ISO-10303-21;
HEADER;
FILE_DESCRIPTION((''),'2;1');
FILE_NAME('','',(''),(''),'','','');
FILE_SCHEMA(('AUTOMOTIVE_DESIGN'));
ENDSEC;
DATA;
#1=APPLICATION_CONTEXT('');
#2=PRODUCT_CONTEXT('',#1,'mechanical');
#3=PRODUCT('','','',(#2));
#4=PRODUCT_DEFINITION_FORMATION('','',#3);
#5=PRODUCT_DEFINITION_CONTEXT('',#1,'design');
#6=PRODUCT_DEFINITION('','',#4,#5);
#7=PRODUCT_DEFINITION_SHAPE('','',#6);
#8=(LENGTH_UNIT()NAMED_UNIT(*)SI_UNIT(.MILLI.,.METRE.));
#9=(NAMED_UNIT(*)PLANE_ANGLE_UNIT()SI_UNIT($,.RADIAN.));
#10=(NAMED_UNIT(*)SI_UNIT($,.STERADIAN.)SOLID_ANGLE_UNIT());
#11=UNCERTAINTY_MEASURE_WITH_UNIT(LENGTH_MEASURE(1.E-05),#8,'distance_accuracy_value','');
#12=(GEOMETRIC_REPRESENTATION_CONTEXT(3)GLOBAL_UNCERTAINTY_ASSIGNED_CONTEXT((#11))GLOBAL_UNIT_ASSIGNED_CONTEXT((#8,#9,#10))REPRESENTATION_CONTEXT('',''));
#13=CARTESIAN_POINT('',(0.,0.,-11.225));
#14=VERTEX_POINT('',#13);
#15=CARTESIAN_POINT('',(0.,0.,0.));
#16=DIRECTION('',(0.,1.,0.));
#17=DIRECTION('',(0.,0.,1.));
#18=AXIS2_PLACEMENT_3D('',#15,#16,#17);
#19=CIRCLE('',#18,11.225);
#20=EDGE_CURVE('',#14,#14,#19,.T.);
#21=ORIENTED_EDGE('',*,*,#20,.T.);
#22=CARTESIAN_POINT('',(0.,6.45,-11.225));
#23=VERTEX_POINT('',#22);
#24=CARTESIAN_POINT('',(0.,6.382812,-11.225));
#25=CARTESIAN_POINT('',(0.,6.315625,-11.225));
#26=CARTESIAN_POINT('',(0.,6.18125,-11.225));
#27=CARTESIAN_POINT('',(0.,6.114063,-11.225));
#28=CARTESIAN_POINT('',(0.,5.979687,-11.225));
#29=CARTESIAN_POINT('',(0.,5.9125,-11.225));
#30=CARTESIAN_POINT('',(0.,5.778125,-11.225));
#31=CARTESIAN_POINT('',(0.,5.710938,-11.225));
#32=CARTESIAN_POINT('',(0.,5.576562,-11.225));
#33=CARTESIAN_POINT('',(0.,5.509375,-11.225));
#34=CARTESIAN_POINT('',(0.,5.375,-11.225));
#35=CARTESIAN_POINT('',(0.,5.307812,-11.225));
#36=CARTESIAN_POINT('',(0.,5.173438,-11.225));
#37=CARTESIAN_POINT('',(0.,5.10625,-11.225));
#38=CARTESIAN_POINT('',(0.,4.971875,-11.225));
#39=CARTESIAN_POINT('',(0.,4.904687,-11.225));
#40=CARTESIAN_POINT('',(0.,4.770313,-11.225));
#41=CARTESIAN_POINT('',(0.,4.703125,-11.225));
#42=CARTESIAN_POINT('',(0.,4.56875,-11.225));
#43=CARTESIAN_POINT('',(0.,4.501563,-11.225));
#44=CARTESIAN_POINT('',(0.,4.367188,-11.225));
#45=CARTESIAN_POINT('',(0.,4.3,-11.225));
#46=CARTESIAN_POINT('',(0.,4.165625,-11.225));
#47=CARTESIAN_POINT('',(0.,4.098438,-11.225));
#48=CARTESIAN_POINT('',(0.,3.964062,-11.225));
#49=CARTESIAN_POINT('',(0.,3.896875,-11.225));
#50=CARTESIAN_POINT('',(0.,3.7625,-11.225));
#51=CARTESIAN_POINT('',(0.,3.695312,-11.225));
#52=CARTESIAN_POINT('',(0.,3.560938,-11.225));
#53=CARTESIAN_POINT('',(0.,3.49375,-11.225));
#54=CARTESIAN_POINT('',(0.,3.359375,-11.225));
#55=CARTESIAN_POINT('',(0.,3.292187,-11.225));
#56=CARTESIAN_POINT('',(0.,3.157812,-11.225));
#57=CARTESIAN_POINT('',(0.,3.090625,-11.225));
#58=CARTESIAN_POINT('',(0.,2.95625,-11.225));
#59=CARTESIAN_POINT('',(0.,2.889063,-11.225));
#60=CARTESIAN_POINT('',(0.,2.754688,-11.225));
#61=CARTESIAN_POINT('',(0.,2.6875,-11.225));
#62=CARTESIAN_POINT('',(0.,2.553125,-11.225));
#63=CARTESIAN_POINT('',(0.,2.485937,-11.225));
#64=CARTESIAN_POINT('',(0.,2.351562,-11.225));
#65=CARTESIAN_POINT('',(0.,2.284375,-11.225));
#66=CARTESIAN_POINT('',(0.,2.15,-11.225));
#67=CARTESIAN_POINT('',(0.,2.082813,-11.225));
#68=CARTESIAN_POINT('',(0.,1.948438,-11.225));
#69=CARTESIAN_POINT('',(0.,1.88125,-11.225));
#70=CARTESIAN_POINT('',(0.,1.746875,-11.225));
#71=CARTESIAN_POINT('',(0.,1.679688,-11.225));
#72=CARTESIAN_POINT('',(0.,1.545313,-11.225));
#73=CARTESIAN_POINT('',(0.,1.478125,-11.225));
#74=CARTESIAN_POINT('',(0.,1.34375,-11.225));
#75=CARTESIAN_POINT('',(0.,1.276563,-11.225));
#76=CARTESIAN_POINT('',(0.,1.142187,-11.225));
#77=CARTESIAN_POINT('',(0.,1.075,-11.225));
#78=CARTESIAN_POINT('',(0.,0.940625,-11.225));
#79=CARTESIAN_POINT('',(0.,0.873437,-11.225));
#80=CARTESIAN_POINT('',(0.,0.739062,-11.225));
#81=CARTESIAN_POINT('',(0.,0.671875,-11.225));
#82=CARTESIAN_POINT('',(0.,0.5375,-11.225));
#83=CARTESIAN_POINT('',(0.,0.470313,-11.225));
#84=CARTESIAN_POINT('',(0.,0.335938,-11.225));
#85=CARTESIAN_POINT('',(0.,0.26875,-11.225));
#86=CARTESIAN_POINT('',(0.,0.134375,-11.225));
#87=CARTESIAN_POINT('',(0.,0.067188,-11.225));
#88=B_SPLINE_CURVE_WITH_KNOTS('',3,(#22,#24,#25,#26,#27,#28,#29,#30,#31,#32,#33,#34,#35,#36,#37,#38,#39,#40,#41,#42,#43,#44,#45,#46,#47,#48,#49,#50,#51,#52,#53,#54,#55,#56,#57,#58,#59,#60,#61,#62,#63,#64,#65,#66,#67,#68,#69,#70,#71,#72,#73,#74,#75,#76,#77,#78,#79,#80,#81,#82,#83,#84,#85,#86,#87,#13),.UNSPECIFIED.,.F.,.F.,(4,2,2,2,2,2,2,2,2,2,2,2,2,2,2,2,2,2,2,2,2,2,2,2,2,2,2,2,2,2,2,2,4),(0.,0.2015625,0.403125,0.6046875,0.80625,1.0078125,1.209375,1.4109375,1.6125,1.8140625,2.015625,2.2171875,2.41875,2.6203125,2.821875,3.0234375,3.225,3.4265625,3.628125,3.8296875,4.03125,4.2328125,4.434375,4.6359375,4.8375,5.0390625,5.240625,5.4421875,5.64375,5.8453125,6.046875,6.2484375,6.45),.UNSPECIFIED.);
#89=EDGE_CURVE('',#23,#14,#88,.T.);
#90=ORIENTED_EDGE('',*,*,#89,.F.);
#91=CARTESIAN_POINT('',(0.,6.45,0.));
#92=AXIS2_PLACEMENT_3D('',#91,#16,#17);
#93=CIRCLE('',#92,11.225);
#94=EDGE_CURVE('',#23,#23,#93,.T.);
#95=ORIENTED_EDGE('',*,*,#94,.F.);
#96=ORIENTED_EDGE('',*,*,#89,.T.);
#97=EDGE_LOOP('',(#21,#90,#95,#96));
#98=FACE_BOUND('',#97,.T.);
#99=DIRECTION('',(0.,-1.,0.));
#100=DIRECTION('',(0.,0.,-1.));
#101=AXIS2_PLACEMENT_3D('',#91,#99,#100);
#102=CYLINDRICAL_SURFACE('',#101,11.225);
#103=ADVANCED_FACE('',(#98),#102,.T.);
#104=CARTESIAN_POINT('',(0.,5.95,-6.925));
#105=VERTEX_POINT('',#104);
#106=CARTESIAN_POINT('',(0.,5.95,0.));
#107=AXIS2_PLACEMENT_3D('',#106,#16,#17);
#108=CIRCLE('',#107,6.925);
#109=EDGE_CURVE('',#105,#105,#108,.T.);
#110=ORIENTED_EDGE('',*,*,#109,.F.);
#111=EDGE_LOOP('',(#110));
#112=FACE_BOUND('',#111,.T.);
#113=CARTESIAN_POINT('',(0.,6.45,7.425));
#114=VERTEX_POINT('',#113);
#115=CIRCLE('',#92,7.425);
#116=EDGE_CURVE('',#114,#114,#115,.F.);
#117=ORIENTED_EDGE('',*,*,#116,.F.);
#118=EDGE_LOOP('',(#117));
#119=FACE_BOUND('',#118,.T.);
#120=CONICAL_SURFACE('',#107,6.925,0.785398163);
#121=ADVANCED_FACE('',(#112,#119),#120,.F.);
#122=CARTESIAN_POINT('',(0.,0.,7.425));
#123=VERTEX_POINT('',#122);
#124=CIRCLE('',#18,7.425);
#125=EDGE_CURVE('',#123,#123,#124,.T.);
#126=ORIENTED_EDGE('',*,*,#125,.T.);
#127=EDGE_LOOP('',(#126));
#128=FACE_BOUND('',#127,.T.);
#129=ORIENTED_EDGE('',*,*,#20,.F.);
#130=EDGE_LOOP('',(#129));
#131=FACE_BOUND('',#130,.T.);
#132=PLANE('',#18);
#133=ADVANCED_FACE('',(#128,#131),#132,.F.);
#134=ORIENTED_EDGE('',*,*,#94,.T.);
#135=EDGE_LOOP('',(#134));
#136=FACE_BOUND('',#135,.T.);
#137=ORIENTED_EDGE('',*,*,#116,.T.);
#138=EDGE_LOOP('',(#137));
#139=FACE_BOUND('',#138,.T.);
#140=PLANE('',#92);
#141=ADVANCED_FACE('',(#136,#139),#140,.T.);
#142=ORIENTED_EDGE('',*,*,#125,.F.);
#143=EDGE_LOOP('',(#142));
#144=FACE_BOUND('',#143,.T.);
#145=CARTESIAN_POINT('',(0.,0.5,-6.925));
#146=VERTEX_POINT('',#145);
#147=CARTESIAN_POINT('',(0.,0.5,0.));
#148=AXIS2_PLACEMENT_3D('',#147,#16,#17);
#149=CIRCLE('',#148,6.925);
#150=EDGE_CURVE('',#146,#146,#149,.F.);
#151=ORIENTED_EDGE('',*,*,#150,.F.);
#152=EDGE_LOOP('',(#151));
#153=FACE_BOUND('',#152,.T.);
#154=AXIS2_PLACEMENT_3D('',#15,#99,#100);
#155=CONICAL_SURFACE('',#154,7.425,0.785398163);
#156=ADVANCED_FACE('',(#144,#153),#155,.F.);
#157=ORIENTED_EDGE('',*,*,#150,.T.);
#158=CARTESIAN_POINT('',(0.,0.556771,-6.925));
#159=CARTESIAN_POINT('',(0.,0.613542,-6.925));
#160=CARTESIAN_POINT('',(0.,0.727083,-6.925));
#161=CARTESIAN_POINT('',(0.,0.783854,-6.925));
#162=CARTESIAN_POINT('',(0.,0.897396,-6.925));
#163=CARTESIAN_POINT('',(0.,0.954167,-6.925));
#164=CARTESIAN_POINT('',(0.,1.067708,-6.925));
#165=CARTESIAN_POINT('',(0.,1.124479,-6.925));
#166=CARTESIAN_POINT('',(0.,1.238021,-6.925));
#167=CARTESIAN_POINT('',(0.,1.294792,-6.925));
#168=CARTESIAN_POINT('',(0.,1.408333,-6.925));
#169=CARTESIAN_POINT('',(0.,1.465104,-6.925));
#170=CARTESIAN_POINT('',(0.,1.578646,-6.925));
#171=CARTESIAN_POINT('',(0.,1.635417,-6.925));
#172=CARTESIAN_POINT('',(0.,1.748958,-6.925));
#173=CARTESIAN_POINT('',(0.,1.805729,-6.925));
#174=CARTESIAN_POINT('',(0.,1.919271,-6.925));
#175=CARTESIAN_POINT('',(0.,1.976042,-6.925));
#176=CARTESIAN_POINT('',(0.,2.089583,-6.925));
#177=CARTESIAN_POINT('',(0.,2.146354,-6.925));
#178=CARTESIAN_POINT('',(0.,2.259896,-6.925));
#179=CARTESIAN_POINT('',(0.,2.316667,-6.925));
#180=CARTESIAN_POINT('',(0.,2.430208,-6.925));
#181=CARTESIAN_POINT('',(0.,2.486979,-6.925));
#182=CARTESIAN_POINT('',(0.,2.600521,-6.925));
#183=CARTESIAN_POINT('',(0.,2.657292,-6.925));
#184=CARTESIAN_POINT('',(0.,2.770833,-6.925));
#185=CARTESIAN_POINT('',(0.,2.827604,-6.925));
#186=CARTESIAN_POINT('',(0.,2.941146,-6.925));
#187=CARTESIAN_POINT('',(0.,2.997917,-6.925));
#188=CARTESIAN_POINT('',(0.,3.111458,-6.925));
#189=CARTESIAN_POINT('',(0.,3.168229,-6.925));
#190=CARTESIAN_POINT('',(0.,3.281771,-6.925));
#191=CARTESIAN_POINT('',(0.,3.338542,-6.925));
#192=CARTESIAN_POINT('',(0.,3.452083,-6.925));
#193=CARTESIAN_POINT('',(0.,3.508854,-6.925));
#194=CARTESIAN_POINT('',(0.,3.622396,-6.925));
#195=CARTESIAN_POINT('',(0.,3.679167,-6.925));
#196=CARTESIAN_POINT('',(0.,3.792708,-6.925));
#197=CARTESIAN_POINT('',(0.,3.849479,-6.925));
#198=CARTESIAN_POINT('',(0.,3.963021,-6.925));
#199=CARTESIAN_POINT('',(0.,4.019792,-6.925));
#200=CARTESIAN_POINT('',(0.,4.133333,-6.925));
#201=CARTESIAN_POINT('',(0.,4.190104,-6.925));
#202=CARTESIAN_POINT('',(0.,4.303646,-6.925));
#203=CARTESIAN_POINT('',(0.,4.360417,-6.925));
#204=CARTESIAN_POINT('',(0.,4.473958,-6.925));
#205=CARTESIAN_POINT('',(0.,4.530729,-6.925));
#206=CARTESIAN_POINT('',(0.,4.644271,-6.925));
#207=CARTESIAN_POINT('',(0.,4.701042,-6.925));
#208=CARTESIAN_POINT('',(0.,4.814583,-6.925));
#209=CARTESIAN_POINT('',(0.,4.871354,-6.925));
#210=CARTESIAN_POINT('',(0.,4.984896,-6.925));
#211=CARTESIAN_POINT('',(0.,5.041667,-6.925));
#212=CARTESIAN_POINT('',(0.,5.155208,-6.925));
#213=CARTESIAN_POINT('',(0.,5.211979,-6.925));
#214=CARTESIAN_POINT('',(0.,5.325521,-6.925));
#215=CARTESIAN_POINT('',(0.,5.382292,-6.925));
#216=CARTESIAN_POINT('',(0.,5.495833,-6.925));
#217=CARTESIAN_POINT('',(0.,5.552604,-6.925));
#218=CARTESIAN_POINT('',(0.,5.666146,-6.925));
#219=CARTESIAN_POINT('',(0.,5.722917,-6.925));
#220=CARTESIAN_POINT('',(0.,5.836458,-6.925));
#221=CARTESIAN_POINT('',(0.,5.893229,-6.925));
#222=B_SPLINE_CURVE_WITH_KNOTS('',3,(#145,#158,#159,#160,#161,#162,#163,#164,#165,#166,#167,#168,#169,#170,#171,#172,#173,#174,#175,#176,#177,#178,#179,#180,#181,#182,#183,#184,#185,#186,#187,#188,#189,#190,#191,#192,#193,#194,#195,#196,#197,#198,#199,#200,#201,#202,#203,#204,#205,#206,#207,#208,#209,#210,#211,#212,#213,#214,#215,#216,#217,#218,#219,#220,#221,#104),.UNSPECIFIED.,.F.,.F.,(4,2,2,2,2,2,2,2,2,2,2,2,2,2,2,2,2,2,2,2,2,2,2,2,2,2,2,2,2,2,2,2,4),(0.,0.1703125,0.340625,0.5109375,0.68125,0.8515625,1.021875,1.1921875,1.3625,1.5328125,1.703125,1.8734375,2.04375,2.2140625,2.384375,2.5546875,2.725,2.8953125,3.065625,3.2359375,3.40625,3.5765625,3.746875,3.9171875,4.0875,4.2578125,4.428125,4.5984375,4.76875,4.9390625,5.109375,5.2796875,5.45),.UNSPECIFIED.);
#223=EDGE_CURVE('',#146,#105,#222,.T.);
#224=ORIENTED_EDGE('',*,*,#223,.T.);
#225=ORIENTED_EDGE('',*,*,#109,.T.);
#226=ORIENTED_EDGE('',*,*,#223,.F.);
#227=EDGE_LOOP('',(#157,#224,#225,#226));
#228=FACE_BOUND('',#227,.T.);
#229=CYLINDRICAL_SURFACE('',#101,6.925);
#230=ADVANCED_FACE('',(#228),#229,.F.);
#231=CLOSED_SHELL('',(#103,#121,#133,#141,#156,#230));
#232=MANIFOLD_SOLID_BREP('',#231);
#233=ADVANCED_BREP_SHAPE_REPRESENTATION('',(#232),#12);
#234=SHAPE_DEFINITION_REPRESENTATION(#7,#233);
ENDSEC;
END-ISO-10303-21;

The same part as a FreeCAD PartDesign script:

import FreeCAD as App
import Part
import Sketcher

V = App.Vector
Q = App.Units.Quantity


def edges_at(feature, points):
    """Names of the edges that pass closest to the given points."""
    edges = feature.Shape.Edges
    near = lambda p: min(range(len(edges)), key=lambda i: edges[i].distToShape(Part.Vertex(*p))[0])
    return sorted({f"Edge{near(p) + 1}" for p in points})

doc = App.newDocument("Part")
params = doc.addObject("Spreadsheet::Sheet", "Params")
for row, (alias, value) in enumerate([
    ("sketch1_diameter", "22.45 mm"),
    ("sketch1_diameter2", "13.85 mm"),
    ("pad1_length", "6.45 mm"),
    ("chamfer_size", "0.5 mm"),
], start=1):
    params.set(f"A{row}", alias)
    params.set(f"B{row}", "=" + value)
    params.setAlias(f"B{row}", alias)

body = doc.addObject("PartDesign::Body", "Body")

# Sketch on XZ plane
sketch1 = doc.addObject("Sketcher::SketchObject", "Sketch")
body.addObject(sketch1)
sketch1.AttachmentSupport = (doc.XZ_Plane, [""])
sketch1.MapMode = "FlatFace"
sketch1.addGeometry(Part.Circle(V(0, 0, 0), V(0, 0, 1), 11), False)
sketch1.addGeometry(Part.Circle(V(0, 0, 0), V(0, 0, 1), 7), False)
sketch1.addConstraint(Sketcher.Constraint("Coincident", 0, 3, -1, 1))
sketch1.addConstraint(Sketcher.Constraint("Coincident", 1, 3, -1, 1))
sketch1.addConstraint(Sketcher.Constraint("Diameter", 0, Q("22.45 mm")))
sketch1.addConstraint(Sketcher.Constraint("Diameter", 1, Q("13.85 mm")))
sketch1.setExpression("Constraints[2]", "Params.sketch1_diameter")
sketch1.setExpression("Constraints[3]", "Params.sketch1_diameter2")
pad1 = doc.addObject("PartDesign::Pad", "Pad")
body.addObject(pad1)
pad1.Profile = sketch1
pad1.setExpression("Length", "Params.pad1_length")
pad1.Reversed = True
doc.recompute()

chamfer = doc.addObject("PartDesign::Chamfer", "Chamfer")
body.addObject(chamfer)
chamfer.Base = (pad1, edges_at(pad1, [(0, 0, 6.925), (0, 6.45, 6.925)]))
chamfer.setExpression("Size", "Params.chamfer_size")

doc.recompute()
